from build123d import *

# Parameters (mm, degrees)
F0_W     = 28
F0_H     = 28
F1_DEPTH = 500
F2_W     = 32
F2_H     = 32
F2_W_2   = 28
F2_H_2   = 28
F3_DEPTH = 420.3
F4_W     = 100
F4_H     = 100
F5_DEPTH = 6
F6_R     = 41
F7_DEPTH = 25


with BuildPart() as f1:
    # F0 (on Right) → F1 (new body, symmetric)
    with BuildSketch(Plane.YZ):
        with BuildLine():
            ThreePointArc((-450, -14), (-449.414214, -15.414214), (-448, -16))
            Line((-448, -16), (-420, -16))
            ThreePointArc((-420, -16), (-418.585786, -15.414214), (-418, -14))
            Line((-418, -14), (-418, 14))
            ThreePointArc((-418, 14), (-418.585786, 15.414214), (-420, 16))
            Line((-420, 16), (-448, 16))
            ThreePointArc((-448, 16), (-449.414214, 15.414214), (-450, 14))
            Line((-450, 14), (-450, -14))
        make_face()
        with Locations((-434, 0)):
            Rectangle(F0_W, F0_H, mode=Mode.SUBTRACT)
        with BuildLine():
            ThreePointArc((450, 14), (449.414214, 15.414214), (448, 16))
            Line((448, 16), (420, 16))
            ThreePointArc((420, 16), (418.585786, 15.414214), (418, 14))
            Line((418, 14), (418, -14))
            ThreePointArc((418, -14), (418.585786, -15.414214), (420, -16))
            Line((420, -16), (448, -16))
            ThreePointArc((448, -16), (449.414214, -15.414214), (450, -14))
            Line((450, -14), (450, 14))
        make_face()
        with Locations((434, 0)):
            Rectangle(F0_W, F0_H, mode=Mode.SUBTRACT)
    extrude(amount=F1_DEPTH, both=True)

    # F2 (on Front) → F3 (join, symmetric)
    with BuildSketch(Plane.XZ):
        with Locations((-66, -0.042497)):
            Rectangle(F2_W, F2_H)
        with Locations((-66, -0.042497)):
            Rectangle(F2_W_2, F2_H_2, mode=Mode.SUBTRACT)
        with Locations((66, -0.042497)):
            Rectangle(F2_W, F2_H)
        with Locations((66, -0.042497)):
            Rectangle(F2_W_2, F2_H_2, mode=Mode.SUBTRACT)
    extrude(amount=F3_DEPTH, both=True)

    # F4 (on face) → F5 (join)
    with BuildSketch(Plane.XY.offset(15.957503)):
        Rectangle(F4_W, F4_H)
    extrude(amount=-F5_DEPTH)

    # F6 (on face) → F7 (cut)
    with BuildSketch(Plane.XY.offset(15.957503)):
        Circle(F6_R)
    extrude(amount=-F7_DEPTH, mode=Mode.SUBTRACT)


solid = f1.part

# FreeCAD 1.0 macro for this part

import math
import FreeCAD as App
import Part
import Sketcher

doc = App.newDocument("Part")
body = doc.addObject("PartDesign::Body", "Body")
body.AllowCompound = True

sketch1 = body.newObject("Sketcher::SketchObject", "Sketch")
sketch1.AttachmentSupport = (doc.getObject("YZ_Plane"), [""])
sketch1.MapMode = "FlatFace"
sketch1.addGeometry([
    Part.ArcOfCircle(Part.Circle(App.Vector(-448, -14, 0), App.Vector(0, 0, 1), 2), math.radians(180), math.radians(270)),
    Part.LineSegment(App.Vector(-448, -16, 0), App.Vector(-420, -16, 0)),
    Part.ArcOfCircle(Part.Circle(App.Vector(-420, -14, 0), App.Vector(0, 0, 1), 2), math.radians(-90), math.radians(0)),
    Part.LineSegment(App.Vector(-418, -14, 0), App.Vector(-418, 14, 0)),
    Part.ArcOfCircle(Part.Circle(App.Vector(-420, 14, 0), App.Vector(0, 0, 1), 2), math.radians(0), math.radians(90)),
    Part.LineSegment(App.Vector(-420, 16, 0), App.Vector(-448, 16, 0)),
    Part.ArcOfCircle(Part.Circle(App.Vector(-448, 14, 0), App.Vector(0, 0, 1), 2), math.radians(90), math.radians(180)),
    Part.LineSegment(App.Vector(-450, 14, 0), App.Vector(-450, -14, 0)),
    Part.LineSegment(App.Vector(-420, -14, 0), App.Vector(-448, -14, 0)),
    Part.LineSegment(App.Vector(-448, -14, 0), App.Vector(-448, 14, 0)),
    Part.LineSegment(App.Vector(-448, 14, 0), App.Vector(-420, 14, 0)),
    Part.LineSegment(App.Vector(-420, 14, 0), App.Vector(-420, -14, 0)),
    Part.ArcOfCircle(Part.Circle(App.Vector(448, 14, 0), App.Vector(0, 0, 1), 2), math.radians(0), math.radians(90)),
    Part.LineSegment(App.Vector(448, 16, 0), App.Vector(420, 16, 0)),
    Part.ArcOfCircle(Part.Circle(App.Vector(420, 14, 0), App.Vector(0, 0, 1), 2), math.radians(90), math.radians(180)),
    Part.LineSegment(App.Vector(418, 14, 0), App.Vector(418, -14, 0)),
    Part.ArcOfCircle(Part.Circle(App.Vector(420, -14, 0), App.Vector(0, 0, 1), 2), math.radians(180), math.radians(270)),
    Part.LineSegment(App.Vector(420, -16, 0), App.Vector(448, -16, 0)),
    Part.ArcOfCircle(Part.Circle(App.Vector(448, -14, 0), App.Vector(0, 0, 1), 2), math.radians(-90), math.radians(0)),
    Part.LineSegment(App.Vector(450, -14, 0), App.Vector(450, 14, 0)),
    Part.LineSegment(App.Vector(448, -14, 0), App.Vector(420, -14, 0)),
    Part.LineSegment(App.Vector(420, -14, 0), App.Vector(420, 14, 0)),
    Part.LineSegment(App.Vector(420, 14, 0), App.Vector(448, 14, 0)),
    Part.LineSegment(App.Vector(448, 14, 0), App.Vector(448, -14, 0)),
], False)
sketch1.addConstraint([
    Sketcher.Constraint("Tangent", 0, 2, 1, 1),
    Sketcher.Constraint("Tangent", 1, 2, 2, 1),
    Sketcher.Constraint("Tangent", 2, 2, 3, 1),
    Sketcher.Constraint("Tangent", 3, 2, 4, 1),
    Sketcher.Constraint("Tangent", 4, 2, 5, 1),
    Sketcher.Constraint("Tangent", 5, 2, 6, 1),
    Sketcher.Constraint("Tangent", 6, 2, 7, 1),
    Sketcher.Constraint("Tangent", 7, 2, 0, 1),
    Sketcher.Constraint("Coincident", 8, 2, 9, 1),
    Sketcher.Constraint("Coincident", 9, 2, 10, 1),
    Sketcher.Constraint("Coincident", 10, 2, 11, 1),
    Sketcher.Constraint("Coincident", 11, 2, 8, 1),
    Sketcher.Constraint("Tangent", 12, 2, 13, 1),
    Sketcher.Constraint("Tangent", 13, 2, 14, 1),
    Sketcher.Constraint("Tangent", 14, 2, 15, 1),
    Sketcher.Constraint("Tangent", 15, 2, 16, 1),
    Sketcher.Constraint("Tangent", 16, 2, 17, 1),
    Sketcher.Constraint("Tangent", 17, 2, 18, 1),
    Sketcher.Constraint("Tangent", 18, 2, 19, 1),
    Sketcher.Constraint("Tangent", 19, 2, 12, 1),
    Sketcher.Constraint("Coincident", 20, 2, 21, 1),
    Sketcher.Constraint("Coincident", 21, 2, 22, 1),
    Sketcher.Constraint("Coincident", 22, 2, 23, 1),
    Sketcher.Constraint("Coincident", 23, 2, 20, 1),
    Sketcher.Constraint("Horizontal", 1),
    Sketcher.Constraint("Vertical", 3),
    Sketcher.Constraint("Horizontal", 5),
    Sketcher.Constraint("Vertical", 7),
    Sketcher.Constraint("Horizontal", 8),
    Sketcher.Constraint("Vertical", 9),
    Sketcher.Constraint("Horizontal", 10),
    Sketcher.Constraint("Vertical", 11),
    Sketcher.Constraint("Horizontal", 13),
    Sketcher.Constraint("Vertical", 15),
    Sketcher.Constraint("Horizontal", 17),
    Sketcher.Constraint("Vertical", 19),
    Sketcher.Constraint("Horizontal", 20),
    Sketcher.Constraint("Vertical", 21),
    Sketcher.Constraint("Horizontal", 22),
    Sketcher.Constraint("Vertical", 23),
    Sketcher.Constraint("Coincident", 8, 2, 0, 3),
    Sketcher.Constraint("Coincident", 9, 2, 6, 3),
    Sketcher.Constraint("Coincident", 10, 2, 4, 3),
    Sketcher.Constraint("Coincident", 20, 2, 16, 3),
    Sketcher.Constraint("Coincident", 21, 2, 14, 3),
    Sketcher.Constraint("Coincident", 22, 2, 12, 3),
    Sketcher.Constraint("Equal", 0, 2),
    Sketcher.Constraint("Equal", 6, 12),
    Sketcher.Constraint("Equal", 16, 18),
    Sketcher.Constraint("Symmetric", 0, 3, 12, 3, -1, 1),
    Sketcher.Constraint("Symmetric", 4, 3, 16, 3, -1, 1),
    Sketcher.Constraint("Horizontal", 6, 3, 12, 3),
    Sketcher.Constraint("Equal", 22, 3),
    Sketcher.Constraint("Radius", 0, 1.999999),
    Sketcher.Constraint("DistanceX", 1, 1, 1, 2, 28.0),
    Sketcher.Constraint("DistanceX", 0, 3, -1, 1, 448.000001),
])
pad1 = body.newObject("PartDesign::Pad", "Pad")
pad1.Profile = sketch1
pad1.Length = 1000
pad1.Midplane = True

sketch2 = body.newObject("Sketcher::SketchObject", "Sketch001")
sketch2.AttachmentSupport = (doc.getObject("XZ_Plane"), [""])
sketch2.MapMode = "FlatFace"
sketch2.addGeometry([
    Part.LineSegment(App.Vector(-82, 16, 0), App.Vector(-82, -16, 0)),
    Part.LineSegment(App.Vector(-82, -16, 0), App.Vector(-50, -16, 0)),
    Part.LineSegment(App.Vector(-50, -16, 0), App.Vector(-50, 16, 0)),
    Part.LineSegment(App.Vector(-50, 16, 0), App.Vector(-82, 16, 0)),
    Part.LineSegment(App.Vector(-52, -14, 0), App.Vector(-80, -14, 0)),
    Part.LineSegment(App.Vector(-80, -14, 0), App.Vector(-80, 14, 0)),
    Part.LineSegment(App.Vector(-80, 14, 0), App.Vector(-52, 14, 0)),
    Part.LineSegment(App.Vector(-52, 14, 0), App.Vector(-52, -14, 0)),
    Part.LineSegment(App.Vector(50, 16, 0), App.Vector(50, -16, 0)),
    Part.LineSegment(App.Vector(50, -16, 0), App.Vector(82, -16, 0)),
    Part.LineSegment(App.Vector(82, -16, 0), App.Vector(82, 16, 0)),
    Part.LineSegment(App.Vector(82, 16, 0), App.Vector(50, 16, 0)),
    Part.LineSegment(App.Vector(80, -14, 0), App.Vector(52, -14, 0)),
    Part.LineSegment(App.Vector(52, -14, 0), App.Vector(52, 14, 0)),
    Part.LineSegment(App.Vector(52, 14, 0), App.Vector(80, 14, 0)),
    Part.LineSegment(App.Vector(80, 14, 0), App.Vector(80, -14, 0)),
], False)
sketch2.addConstraint([
    Sketcher.Constraint("Coincident", 0, 2, 1, 1),
    Sketcher.Constraint("Coincident", 1, 2, 2, 1),
    Sketcher.Constraint("Coincident", 2, 2, 3, 1),
    Sketcher.Constraint("Coincident", 3, 2, 0, 1),
    Sketcher.Constraint("Coincident", 4, 2, 5, 1),
    Sketcher.Constraint("Coincident", 5, 2, 6, 1),
    Sketcher.Constraint("Coincident", 6, 2, 7, 1),
    Sketcher.Constraint("Coincident", 7, 2, 4, 1),
    Sketcher.Constraint("Coincident", 8, 2, 9, 1),
    Sketcher.Constraint("Coincident", 9, 2, 10, 1),
    Sketcher.Constraint("Coincident", 10, 2, 11, 1),
    Sketcher.Constraint("Coincident", 11, 2, 8, 1),
    Sketcher.Constraint("Coincident", 12, 2, 13, 1),
    Sketcher.Constraint("Coincident", 13, 2, 14, 1),
    Sketcher.Constraint("Coincident", 14, 2, 15, 1),
    Sketcher.Constraint("Coincident", 15, 2, 12, 1),
    Sketcher.Constraint("Vertical", 0),
    Sketcher.Constraint("Horizontal", 1),
    Sketcher.Constraint("Vertical", 2),
    Sketcher.Constraint("Horizontal", 3),
    Sketcher.Constraint("Horizontal", 4),
    Sketcher.Constraint("Vertical", 5),
    Sketcher.Constraint("Horizontal", 6),
    Sketcher.Constraint("Vertical", 7),
    Sketcher.Constraint("Vertical", 8),
    Sketcher.Constraint("Horizontal", 9),
    Sketcher.Constraint("Vertical", 10),
    Sketcher.Constraint("Horizontal", 11),
    Sketcher.Constraint("Horizontal", 12),
    Sketcher.Constraint("Vertical", 13),
    Sketcher.Constraint("Horizontal", 14),
    Sketcher.Constraint("Vertical", 15),
    Sketcher.Constraint("Symmetric", 1, 2, 8, 2, -2),
    Sketcher.Constraint("Symmetric", 3, 2, 10, 2, -2),
    Sketcher.Constraint("Symmetric", 7, 2, 12, 2, -2),
    Sketcher.Constraint("Symmetric", 5, 2, 14, 2, -2),
    Sketcher.Constraint("Equal", 11, 0),
    Sketcher.Constraint("Equal", 14, 5),
    Sketcher.Constraint("DistanceX", 1, 1, 1, 2, 32.0),
    Sketcher.Constraint("DistanceX", 4, 2, 4, 1, 28.0),
    Sketcher.Constraint("DistanceX", 0, 2, -1, 1, 82.0),
    Sketcher.Constraint("DistanceX", 4, 2, -1, 1, 80.0),
    Sketcher.Constraint("DistanceY", 0, 2, 4, 2, 2.0),
    Sketcher.Constraint("DistanceY", 0, 2, -1, 1, 16.042497),
])
pad2 = body.newObject("PartDesign::Pad", "Pad001")
pad2.Profile = sketch2
pad2.Length = 840.6
pad2.Midplane = True

sketch3 = body.newObject("Sketcher::SketchObject", "Sketch002")
sketch3.AttachmentSupport = (doc.getObject("XY_Plane"), [""])
sketch3.MapMode = "FlatFace"
sketch3.AttachmentOffset = App.Placement(App.Vector(0, 0, 15.957503), App.Rotation())
sketch3.addGeometry([
    Part.LineSegment(App.Vector(-50, 50, 0), App.Vector(-50, -50, 0)),
    Part.LineSegment(App.Vector(-50, -50, 0), App.Vector(50, -50, 0)),
    Part.LineSegment(App.Vector(50, -50, 0), App.Vector(50, 50, 0)),
    Part.LineSegment(App.Vector(50, 50, 0), App.Vector(-50, 50, 0)),
], False)
sketch3.addConstraint([
    Sketcher.Constraint("Coincident", 0, 2, 1, 1),
    Sketcher.Constraint("Coincident", 1, 2, 2, 1),
    Sketcher.Constraint("Coincident", 2, 2, 3, 1),
    Sketcher.Constraint("Coincident", 3, 2, 0, 1),
    Sketcher.Constraint("Vertical", 0),
    Sketcher.Constraint("Horizontal", 1),
    Sketcher.Constraint("Vertical", 2),
    Sketcher.Constraint("Horizontal", 3),
    Sketcher.Constraint("Symmetric", 0, 2, 2, 2, -1, 1),
    Sketcher.Constraint("Equal", 3, 0),
    Sketcher.Constraint("DistanceX", 1, 1, 1, 2, 100.0),
])
pad3 = body.newObject("PartDesign::Pad", "Pad002")
pad3.Profile = sketch3
pad3.Length = 6
pad3.Reversed = True

sketch4 = body.newObject("Sketcher::SketchObject", "Sketch003")
sketch4.AttachmentSupport = (doc.getObject("XY_Plane"), [""])
sketch4.MapMode = "FlatFace"
sketch4.AttachmentOffset = App.Placement(App.Vector(0, 0, 15.957503), App.Rotation())
sketch4.addGeometry(Part.Circle(App.Vector(0, 0, 0), App.Vector(0, 0, 1), 41), False)
sketch4.addConstraint([
    Sketcher.Constraint("Coincident", 0, 3, -1, 1),
    Sketcher.Constraint("Diameter", 0, 82.0),
])
pocket1 = body.newObject("PartDesign::Pocket", "Pocket")
pocket1.Profile = sketch4
pocket1.Length = 25

doc.recompute()
